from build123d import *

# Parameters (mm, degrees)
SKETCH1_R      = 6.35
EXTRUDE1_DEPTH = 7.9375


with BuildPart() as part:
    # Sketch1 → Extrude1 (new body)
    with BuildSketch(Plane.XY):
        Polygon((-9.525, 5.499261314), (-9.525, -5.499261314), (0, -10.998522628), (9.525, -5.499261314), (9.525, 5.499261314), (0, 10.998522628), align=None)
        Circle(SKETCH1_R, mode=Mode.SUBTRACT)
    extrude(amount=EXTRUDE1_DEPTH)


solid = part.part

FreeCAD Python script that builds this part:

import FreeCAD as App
import Part
import Sketcher
Q = App.Units.Quantity


def add_polygon(sketch, points):
    """Adds a closed chain of lines whose ends are joined by coincident constraints."""
    first, n = sketch.GeometryCount, len(points)
    for a, b in zip(points, points[1:] + points[:1]):
        sketch.addGeometry(Part.LineSegment(App.Vector(*a, 0), App.Vector(*b, 0)), False)
    for i in range(n):
        sketch.addConstraint(Sketcher.Constraint("Coincident", first + i, 2, first + (i + 1) % n, 1))

doc = App.newDocument("Part")
body = doc.addObject("PartDesign::Body", "Body")

sketch1 = body.newObject("Sketcher::SketchObject", "Sketch")
sketch1.AttachmentSupport = (doc.getObject("XY_Plane"), [""])
sketch1.MapMode = "FlatFace"
add_polygon(sketch1, [(-10, 5), (-10, -5), (0, -11), (10, -5), (10, 5), (0, 11)])
sketch1.addGeometry(Part.Circle(App.Vector(0, 0, 0), App.Vector(0, 0, 1), 6), False)
sketch1.addConstraint(Sketcher.Constraint("Vertical", 0))
sketch1.addConstraint(Sketcher.Constraint("Vertical", 3))
sketch1.addConstraint(Sketcher.Constraint("Coincident", 6, 3, -1, 1))
sketch1.addConstraint(Sketcher.Constraint("Symmetric", 0, 2, 3, 2, -1, 1))
sketch1.addConstraint(Sketcher.Constraint("Symmetric", 1, 2, 4, 2, -1, 1))
sketch1.addConstraint(Sketcher.Constraint("PointOnObject", 1, 2, -2))
sketch1.addConstraint(Sketcher.Constraint("Parallel", 2, 5))
sketch1.addConstraint(Sketcher.Constraint("Horizontal", 0, 2, 2, 2))
sketch1.addConstraint(Sketcher.Constraint("Diameter", 6, Q("0.5 in")))
sketch1.addConstraint(Sketcher.Constraint("Angle", 1, Q("-30 deg")))
sketch1.addConstraint(Sketcher.Constraint("DistanceX", 0, 2, 2, 2, Q("0.75 in")))
sketch1.addConstraint(Sketcher.Constraint("DistanceY", 0, 2, 0, 1, Q("10.998523 mm")))
pad1 = body.newObject("PartDesign::Pad", "Pad")
pad1.Profile = sketch1
pad1.Length = Q("0.3125 in")

doc.recompute()
